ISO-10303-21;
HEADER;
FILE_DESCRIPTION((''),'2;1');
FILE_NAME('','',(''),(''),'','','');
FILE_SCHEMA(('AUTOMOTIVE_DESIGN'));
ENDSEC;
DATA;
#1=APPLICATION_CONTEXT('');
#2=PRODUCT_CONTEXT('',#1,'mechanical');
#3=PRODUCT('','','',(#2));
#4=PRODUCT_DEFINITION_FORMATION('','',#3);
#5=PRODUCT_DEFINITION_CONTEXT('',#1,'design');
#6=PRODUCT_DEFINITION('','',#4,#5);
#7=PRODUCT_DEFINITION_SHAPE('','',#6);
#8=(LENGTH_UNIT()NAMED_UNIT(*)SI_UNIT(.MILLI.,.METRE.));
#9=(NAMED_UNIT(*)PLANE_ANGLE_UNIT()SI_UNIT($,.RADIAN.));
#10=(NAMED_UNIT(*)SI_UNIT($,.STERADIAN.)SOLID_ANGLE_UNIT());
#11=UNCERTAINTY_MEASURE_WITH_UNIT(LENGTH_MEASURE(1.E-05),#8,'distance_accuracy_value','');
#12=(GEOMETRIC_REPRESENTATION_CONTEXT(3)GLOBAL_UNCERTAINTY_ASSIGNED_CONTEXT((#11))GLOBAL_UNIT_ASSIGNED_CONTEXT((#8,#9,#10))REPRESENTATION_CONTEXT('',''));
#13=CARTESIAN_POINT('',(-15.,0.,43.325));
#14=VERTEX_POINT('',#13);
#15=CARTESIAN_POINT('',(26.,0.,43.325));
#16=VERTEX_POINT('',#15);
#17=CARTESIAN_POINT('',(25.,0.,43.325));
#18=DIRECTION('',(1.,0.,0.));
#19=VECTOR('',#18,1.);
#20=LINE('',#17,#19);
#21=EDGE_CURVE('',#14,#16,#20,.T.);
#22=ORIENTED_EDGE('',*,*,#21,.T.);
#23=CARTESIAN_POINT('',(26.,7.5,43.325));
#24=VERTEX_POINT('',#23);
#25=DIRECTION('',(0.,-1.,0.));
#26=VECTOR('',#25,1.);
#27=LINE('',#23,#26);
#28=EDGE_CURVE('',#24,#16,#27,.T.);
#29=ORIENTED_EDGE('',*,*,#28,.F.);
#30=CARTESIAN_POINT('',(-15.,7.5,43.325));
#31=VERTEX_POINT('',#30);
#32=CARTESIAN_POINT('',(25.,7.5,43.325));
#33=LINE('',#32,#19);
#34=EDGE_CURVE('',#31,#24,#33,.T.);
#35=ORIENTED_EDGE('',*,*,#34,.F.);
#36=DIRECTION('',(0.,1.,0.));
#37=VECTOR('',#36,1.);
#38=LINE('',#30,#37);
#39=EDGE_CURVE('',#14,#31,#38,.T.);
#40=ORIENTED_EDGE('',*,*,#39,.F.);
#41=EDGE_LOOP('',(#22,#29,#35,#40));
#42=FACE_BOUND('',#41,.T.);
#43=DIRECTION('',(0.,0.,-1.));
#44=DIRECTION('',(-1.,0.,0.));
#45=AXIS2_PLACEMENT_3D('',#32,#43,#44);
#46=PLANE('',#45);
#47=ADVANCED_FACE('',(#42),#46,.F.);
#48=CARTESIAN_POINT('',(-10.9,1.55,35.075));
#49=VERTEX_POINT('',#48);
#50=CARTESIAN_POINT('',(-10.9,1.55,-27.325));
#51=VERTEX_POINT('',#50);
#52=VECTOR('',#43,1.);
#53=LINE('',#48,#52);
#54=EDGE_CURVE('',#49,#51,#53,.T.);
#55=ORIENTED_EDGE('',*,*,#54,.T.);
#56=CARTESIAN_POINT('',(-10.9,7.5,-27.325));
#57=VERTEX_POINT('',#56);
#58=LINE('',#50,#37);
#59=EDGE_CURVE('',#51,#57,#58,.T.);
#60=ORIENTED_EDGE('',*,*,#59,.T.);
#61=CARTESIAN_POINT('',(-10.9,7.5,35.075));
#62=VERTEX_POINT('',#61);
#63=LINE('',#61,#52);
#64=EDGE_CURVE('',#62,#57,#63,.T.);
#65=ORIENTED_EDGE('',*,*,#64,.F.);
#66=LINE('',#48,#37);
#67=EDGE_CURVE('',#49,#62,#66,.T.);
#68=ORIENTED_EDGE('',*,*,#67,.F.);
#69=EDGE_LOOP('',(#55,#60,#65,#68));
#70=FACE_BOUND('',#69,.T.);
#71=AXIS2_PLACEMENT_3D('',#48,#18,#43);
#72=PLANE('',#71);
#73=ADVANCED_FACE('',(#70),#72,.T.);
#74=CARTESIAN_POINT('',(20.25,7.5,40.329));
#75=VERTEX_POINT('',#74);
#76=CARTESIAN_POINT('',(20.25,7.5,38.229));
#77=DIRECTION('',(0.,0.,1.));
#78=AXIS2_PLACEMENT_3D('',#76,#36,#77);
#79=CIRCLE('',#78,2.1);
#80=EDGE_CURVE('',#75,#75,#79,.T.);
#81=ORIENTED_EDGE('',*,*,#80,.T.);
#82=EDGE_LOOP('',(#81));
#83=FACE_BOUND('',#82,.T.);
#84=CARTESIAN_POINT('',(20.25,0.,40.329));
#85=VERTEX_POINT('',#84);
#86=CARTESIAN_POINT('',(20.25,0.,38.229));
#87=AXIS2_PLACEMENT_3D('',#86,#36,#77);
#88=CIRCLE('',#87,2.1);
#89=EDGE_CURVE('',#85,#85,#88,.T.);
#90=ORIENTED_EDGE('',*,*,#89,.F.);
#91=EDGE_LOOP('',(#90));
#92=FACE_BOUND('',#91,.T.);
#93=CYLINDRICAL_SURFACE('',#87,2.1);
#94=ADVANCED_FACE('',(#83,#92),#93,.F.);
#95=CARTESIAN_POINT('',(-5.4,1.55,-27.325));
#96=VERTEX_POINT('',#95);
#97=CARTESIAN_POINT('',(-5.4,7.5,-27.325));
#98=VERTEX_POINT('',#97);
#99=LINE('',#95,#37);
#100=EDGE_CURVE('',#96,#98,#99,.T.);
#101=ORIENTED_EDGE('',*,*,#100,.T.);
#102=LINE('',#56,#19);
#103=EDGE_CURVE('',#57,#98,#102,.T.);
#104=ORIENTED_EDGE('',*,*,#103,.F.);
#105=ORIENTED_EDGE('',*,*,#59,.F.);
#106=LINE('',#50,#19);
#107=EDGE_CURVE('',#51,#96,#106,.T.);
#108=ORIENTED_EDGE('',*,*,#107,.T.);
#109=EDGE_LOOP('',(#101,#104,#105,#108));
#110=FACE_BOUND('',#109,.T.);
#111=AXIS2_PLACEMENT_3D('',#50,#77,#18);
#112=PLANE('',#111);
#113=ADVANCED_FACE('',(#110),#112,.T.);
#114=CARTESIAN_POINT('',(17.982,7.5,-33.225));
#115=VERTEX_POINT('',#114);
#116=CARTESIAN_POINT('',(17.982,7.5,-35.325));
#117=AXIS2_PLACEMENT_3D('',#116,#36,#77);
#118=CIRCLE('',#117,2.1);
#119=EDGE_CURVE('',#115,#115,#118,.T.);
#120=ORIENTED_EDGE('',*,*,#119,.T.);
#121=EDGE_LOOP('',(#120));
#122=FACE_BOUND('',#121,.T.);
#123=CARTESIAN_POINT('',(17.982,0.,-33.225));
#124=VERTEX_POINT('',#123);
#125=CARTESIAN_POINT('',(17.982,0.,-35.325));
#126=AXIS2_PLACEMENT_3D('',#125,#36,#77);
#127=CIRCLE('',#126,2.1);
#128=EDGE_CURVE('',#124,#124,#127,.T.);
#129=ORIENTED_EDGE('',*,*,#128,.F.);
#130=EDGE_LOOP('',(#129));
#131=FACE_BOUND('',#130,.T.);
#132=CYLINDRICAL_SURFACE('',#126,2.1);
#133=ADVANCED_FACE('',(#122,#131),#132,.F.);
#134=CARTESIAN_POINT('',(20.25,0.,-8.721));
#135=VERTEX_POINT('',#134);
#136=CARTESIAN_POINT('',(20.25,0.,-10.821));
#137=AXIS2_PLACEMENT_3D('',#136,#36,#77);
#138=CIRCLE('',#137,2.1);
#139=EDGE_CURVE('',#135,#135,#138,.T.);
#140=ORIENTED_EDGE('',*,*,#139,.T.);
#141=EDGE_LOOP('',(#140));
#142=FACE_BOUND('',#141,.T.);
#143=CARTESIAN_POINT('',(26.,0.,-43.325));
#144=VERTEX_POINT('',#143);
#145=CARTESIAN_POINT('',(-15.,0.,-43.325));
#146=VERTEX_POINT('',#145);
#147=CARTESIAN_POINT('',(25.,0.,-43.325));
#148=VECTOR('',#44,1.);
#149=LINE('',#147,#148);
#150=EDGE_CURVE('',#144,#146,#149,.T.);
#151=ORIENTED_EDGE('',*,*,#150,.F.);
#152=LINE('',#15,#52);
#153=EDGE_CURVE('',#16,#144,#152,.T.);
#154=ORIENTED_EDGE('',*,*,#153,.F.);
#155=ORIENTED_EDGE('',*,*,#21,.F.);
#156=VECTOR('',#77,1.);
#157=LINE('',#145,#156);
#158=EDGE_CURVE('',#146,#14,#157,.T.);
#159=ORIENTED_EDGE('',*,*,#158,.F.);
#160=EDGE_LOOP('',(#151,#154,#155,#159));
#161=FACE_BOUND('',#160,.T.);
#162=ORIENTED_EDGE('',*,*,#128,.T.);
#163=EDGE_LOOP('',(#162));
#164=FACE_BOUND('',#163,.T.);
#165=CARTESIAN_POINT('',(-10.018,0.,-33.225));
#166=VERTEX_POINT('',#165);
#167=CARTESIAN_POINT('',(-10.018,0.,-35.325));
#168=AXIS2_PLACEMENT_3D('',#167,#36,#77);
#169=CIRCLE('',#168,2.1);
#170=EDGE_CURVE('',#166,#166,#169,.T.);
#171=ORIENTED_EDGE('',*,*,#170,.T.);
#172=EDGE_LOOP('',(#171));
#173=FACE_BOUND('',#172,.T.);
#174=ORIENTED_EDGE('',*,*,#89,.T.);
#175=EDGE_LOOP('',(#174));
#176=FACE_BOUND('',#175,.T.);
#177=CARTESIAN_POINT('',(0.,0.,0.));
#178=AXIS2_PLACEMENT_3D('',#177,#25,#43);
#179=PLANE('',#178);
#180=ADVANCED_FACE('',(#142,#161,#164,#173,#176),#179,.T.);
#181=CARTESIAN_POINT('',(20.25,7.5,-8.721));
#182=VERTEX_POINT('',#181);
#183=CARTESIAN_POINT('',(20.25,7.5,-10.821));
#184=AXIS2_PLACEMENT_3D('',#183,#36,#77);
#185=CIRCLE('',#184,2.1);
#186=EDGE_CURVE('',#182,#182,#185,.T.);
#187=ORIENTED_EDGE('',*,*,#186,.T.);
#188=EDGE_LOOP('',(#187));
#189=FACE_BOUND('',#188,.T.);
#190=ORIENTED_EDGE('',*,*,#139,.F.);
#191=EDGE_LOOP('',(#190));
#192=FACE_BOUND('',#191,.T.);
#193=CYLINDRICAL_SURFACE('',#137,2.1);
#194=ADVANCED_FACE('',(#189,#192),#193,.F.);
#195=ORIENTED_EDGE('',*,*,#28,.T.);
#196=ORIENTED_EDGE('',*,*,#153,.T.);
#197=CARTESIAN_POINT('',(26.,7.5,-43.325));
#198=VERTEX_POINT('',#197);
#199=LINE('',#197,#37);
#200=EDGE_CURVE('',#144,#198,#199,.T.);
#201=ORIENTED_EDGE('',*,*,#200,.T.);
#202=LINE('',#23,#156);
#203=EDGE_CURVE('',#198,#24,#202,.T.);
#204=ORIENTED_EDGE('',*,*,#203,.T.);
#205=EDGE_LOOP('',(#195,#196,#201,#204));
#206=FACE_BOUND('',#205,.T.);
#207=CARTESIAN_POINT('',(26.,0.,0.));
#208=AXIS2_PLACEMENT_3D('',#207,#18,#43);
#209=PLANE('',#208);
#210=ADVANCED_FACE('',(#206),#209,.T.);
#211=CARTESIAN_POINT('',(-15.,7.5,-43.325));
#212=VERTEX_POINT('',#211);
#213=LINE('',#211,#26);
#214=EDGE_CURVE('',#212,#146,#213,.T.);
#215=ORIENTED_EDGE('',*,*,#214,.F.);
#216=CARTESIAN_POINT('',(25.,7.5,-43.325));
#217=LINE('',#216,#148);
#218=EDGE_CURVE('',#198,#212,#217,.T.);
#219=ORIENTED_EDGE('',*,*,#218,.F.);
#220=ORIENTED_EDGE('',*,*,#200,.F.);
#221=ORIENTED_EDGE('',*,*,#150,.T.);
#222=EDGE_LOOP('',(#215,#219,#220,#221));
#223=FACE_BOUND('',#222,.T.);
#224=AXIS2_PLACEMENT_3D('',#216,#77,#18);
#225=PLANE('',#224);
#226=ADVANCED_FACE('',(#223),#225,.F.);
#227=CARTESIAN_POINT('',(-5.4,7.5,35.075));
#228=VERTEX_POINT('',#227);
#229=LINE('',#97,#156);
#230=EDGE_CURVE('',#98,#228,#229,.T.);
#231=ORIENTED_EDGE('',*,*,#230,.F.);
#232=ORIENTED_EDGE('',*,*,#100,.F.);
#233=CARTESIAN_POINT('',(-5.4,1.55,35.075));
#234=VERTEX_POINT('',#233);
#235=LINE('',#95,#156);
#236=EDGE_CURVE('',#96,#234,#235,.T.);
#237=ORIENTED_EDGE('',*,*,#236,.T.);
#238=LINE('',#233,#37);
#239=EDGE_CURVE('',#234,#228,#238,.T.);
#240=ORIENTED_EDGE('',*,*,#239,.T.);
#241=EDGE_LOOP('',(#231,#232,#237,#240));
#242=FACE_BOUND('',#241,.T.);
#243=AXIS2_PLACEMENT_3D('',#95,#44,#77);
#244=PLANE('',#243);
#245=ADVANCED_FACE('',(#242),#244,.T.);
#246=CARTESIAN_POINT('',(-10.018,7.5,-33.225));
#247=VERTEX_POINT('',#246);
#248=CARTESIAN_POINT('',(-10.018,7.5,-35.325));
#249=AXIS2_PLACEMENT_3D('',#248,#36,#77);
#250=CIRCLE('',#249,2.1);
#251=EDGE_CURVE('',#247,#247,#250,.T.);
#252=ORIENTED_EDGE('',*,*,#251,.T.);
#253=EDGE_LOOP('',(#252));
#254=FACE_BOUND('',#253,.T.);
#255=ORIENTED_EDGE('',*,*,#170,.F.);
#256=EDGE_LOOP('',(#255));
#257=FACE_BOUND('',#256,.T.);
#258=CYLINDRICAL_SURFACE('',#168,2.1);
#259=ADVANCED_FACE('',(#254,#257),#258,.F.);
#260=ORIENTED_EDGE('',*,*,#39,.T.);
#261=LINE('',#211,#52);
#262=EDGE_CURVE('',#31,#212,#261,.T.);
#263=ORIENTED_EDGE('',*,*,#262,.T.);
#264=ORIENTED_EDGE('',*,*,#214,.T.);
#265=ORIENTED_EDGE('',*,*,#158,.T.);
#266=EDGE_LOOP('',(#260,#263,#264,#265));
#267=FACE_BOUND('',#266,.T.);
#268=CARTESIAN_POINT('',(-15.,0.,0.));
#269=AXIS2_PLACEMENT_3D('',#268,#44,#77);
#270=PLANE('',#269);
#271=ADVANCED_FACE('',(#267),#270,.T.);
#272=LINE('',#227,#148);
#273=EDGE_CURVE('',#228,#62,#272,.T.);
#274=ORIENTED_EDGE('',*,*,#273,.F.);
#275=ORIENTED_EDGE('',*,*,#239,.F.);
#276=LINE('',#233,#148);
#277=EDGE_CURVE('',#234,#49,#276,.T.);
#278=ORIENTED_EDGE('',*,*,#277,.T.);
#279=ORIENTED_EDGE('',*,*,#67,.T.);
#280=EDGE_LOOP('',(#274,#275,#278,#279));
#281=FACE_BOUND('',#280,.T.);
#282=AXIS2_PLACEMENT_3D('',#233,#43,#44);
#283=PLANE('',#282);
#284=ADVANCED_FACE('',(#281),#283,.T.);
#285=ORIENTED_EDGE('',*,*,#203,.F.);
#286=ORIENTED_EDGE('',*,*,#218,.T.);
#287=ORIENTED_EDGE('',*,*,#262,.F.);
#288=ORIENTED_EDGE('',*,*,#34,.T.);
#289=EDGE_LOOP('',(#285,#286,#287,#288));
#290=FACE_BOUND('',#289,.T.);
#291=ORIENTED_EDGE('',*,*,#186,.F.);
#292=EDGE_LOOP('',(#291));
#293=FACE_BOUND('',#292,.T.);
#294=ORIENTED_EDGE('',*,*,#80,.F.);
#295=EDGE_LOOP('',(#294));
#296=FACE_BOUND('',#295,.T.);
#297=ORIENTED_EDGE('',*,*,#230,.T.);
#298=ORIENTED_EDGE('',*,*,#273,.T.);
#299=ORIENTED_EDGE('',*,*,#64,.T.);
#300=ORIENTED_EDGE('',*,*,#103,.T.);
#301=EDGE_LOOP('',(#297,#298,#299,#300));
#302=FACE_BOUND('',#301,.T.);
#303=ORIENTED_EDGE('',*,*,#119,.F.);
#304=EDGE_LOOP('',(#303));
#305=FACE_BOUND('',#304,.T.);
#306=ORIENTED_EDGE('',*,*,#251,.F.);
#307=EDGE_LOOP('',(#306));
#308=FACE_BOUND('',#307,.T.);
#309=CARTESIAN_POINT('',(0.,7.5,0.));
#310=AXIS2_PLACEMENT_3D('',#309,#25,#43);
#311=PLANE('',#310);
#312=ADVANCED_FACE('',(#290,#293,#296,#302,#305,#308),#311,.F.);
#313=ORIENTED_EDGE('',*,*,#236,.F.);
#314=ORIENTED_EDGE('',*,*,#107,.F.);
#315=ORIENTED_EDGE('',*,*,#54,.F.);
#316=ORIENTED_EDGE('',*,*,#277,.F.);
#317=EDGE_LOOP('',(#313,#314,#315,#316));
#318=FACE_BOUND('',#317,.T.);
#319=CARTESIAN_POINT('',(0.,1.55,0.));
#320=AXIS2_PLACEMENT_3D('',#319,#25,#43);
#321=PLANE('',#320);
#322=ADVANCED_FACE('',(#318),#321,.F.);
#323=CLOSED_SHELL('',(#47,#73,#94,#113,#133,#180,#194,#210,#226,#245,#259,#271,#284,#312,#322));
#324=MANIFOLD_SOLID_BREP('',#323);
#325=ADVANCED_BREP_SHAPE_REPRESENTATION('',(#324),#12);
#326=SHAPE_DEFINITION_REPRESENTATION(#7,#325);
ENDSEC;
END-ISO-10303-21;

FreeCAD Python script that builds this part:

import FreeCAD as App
import Part
import Sketcher

V = App.Vector

doc = App.newDocument("Part")
body = doc.addObject("PartDesign::Body", "Body")

# Sketch on XZ plane
sketch1 = body.newObject("Sketcher::SketchObject", "Sketch")
sketch1.AttachmentSupport = (doc.getObject("XZ_Plane"), [""])
sketch1.MapMode = "FlatFace"
sketch1.addGeometry([
    Part.LineSegment(V(-25, -43, 0), V(-25, 43, 0)),
    Part.LineSegment(V(-25, 43, 0), V(25, 43, 0)),
    Part.LineSegment(V(25, 43, 0), V(25, -43, 0)),
    Part.LineSegment(V(25, -43, 0), V(-25, -43, 0)),
], False)
sketch1.addConstraint([
    Sketcher.Constraint("Coincident", 0, 2, 1, 1),
    Sketcher.Constraint("Coincident", 1, 2, 2, 1),
    Sketcher.Constraint("Coincident", 2, 2, 3, 1),
    Sketcher.Constraint("Coincident", 3, 2, 0, 1),
    Sketcher.Constraint("Vertical", 0),
    Sketcher.Constraint("Horizontal", 1),
    Sketcher.Constraint("Vertical", 2),
    Sketcher.Constraint("Horizontal", 3),
    Sketcher.Constraint("Symmetric", 0, 2, 2, 2, -1, 1),
    Sketcher.Constraint("DistanceX", 1, 1, 1, 2, 50.0),
    Sketcher.Constraint("DistanceY", 0, 1, 0, 2, 86.65),
])
pad1 = body.newObject("PartDesign::Pad", "Pad")
pad1.Profile = sketch1
pad1.Length = 7.5
pad1.Reversed = True

# Sketch on XZ plane
sketch2 = body.newObject("Sketcher::SketchObject", "Sketch001")
sketch2.AttachmentSupport = (doc.getObject("XZ_Plane"), [""])
sketch2.MapMode = "FlatFace"
sketch2.AttachmentOffset = App.Placement(V(0, 0, -7.5), App.Rotation())
sketch2.addGeometry([
    Part.LineSegment(V(-11, -27, 0), V(-11, 35, 0)),
    Part.LineSegment(V(-11, 35, 0), V(-5, 35, 0)),
    Part.LineSegment(V(-5, 35, 0), V(-5, -27, 0)),
    Part.LineSegment(V(-5, -27, 0), V(-11, -27, 0)),
], False)
sketch2.addConstraint([
    Sketcher.Constraint("Coincident", 0, 2, 1, 1),
    Sketcher.Constraint("Coincident", 1, 2, 2, 1),
    Sketcher.Constraint("Coincident", 2, 2, 3, 1),
    Sketcher.Constraint("Coincident", 3, 2, 0, 1),
    Sketcher.Constraint("Vertical", 0),
    Sketcher.Constraint("Horizontal", 1),
    Sketcher.Constraint("Vertical", 2),
    Sketcher.Constraint("Horizontal", 3),
    Sketcher.Constraint("DistanceX", 1, 1, 1, 2, 5.5),
    Sketcher.Constraint("DistanceY", 0, 1, 0, 2, 62.4),
    Sketcher.Constraint("DistanceX", 0, 2, -1, 1, 10.9),
    Sketcher.Constraint("DistanceY", -1, 1, 0, 2, 35.075),
])
pocket1 = body.newObject("PartDesign::Pocket", "Pocket")
pocket1.Profile = sketch2
pocket1.Length = 5.95
pocket1.Reversed = True

# Sketch on XZ plane
sketch3 = body.newObject("Sketcher::SketchObject", "Sketch002")
sketch3.AttachmentSupport = (doc.getObject("XZ_Plane"), [""])
sketch3.MapMode = "FlatFace"
sketch3.AttachmentOffset = App.Placement(V(0, 0, -7.5), App.Rotation())
sketch3.addGeometry([
    Part.Circle(V(18, -35.3, 0), V(0, 0, 1), 2.1),
    Part.Circle(V(-10, -35.3, 0), V(0, 0, 1), 2.1),
], False)
sketch3.addConstraint([
    Sketcher.Constraint("Equal", 0, 1),
    Sketcher.Constraint("Horizontal", 0, 3, 1, 3),
    Sketcher.Constraint("Diameter", 0, 4.2),
    Sketcher.Constraint("DistanceX", 1, 3, 0, 3, 28.0),
    Sketcher.Constraint("DistanceX", -1, 1, 0, 3, 17.982),
    Sketcher.Constraint("DistanceY", 0, 3, -1, 1, 35.325),
])
pocket2 = body.newObject("PartDesign::Pocket", "Pocket001")
pocket2.Profile = sketch3
pocket2.Type = "ThroughAll"
pocket2.Reversed = True

# Sketch on XZ plane
sketch4 = body.newObject("Sketcher::SketchObject", "Sketch003")
sketch4.AttachmentSupport = (doc.getObject("XZ_Plane"), [""])
sketch4.MapMode = "FlatFace"
sketch4.AttachmentOffset = App.Placement(V(0, 0, -7.5), App.Rotation())
sketch4.addGeometry([
    Part.Circle(V(20.2, -10.8, 0), V(0, 0, 1), 2.1),
    Part.Circle(V(20.2, 38.2, 0), V(0, 0, 1), 2.1),
], False)
sketch4.addConstraint([
    Sketcher.Constraint("Equal", 0, 1),
    Sketcher.Constraint("Vertical", 0, 3, 1, 3),
    Sketcher.Constraint("Diameter", 0, 4.2),
    Sketcher.Constraint("DistanceX", -1, 1, 0, 3, 20.25),
    Sketcher.Constraint("DistanceY", 0, 3, 1, 3, 49.05),
    Sketcher.Constraint("DistanceY", 0, 3, -1, 1, 10.821),
])
pocket3 = body.newObject("PartDesign::Pocket", "Pocket002")
pocket3.Profile = sketch4
pocket3.Type = "ThroughAll"
pocket3.Reversed = True

# Sketch on YZ plane
sketch5 = body.newObject("Sketcher::SketchObject", "Sketch004")
sketch5.AttachmentSupport = (doc.getObject("YZ_Plane"), [""])
sketch5.MapMode = "FlatFace"
sketch5.AttachmentOffset = App.Placement(V(0, 0, 25), App.Rotation())
sketch5.addGeometry([
    Part.LineSegment(V(8, 43, 0), V(0, 43, 0)),
    Part.LineSegment(V(0, 43, 0), V(0, -43, 0)),
    Part.LineSegment(V(0, -43, 0), V(8, -43, 0)),
    Part.LineSegment(V(8, -43, 0), V(8, 43, 0)),
], False)
sketch5.addConstraint([
    Sketcher.Constraint("Coincident", 0, 2, 1, 1),
    Sketcher.Constraint("Coincident", 1, 2, 2, 1),
    Sketcher.Constraint("Coincident", 2, 2, 3, 1),
    Sketcher.Constraint("Coincident", 3, 2, 0, 1),
    Sketcher.Constraint("Horizontal", 0),
    Sketcher.Constraint("Vertical", 1),
    Sketcher.Constraint("Horizontal", 2),
    Sketcher.Constraint("Vertical", 3),
    Sketcher.Constraint("Symmetric", 0, 2, 1, 2, -1, 1),
    Sketcher.Constraint("DistanceX", 0, 2, 0, 1, 7.5),
    Sketcher.Constraint("DistanceY", 1, 2, 1, 1, 86.65),
])
pad2 = body.newObject("PartDesign::Pad", "Pad001")
pad2.Profile = sketch5
pad2.Length = 1

# Sketch on YZ plane
sketch6 = body.newObject("Sketcher::SketchObject", "Sketch005")
sketch6.AttachmentSupport = (doc.getObject("YZ_Plane"), [""])
sketch6.MapMode = "FlatFace"
sketch6.AttachmentOffset = App.Placement(V(0, 0, -25), App.Rotation())
sketch6.addGeometry([
    Part.LineSegment(V(8, -43, 0), V(0, -43, 0)),
    Part.LineSegment(V(0, -43, 0), V(0, 43, 0)),
    Part.LineSegment(V(0, 43, 0), V(8, 43, 0)),
    Part.LineSegment(V(8, 43, 0), V(8, -43, 0)),
], False)
sketch6.addConstraint([
    Sketcher.Constraint("Coincident", 0, 2, 1, 1),
    Sketcher.Constraint("Coincident", 1, 2, 2, 1),
    Sketcher.Constraint("Coincident", 2, 2, 3, 1),
    Sketcher.Constraint("Coincident", 3, 2, 0, 1),
    Sketcher.Constraint("Horizontal", 0),
    Sketcher.Constraint("Vertical", 1),
    Sketcher.Constraint("Horizontal", 2),
    Sketcher.Constraint("Vertical", 3),
    Sketcher.Constraint("Symmetric", 0, 2, 1, 2, -1, 1),
    Sketcher.Constraint("DistanceX", 0, 2, 0, 1, 7.5),
    Sketcher.Constraint("DistanceY", 1, 1, 1, 2, 86.65),
])
pocket4 = body.newObject("PartDesign::Pocket", "Pocket003")
pocket4.Profile = sketch6
pocket4.Length = 10
pocket4.Reversed = True

doc.recompute()
